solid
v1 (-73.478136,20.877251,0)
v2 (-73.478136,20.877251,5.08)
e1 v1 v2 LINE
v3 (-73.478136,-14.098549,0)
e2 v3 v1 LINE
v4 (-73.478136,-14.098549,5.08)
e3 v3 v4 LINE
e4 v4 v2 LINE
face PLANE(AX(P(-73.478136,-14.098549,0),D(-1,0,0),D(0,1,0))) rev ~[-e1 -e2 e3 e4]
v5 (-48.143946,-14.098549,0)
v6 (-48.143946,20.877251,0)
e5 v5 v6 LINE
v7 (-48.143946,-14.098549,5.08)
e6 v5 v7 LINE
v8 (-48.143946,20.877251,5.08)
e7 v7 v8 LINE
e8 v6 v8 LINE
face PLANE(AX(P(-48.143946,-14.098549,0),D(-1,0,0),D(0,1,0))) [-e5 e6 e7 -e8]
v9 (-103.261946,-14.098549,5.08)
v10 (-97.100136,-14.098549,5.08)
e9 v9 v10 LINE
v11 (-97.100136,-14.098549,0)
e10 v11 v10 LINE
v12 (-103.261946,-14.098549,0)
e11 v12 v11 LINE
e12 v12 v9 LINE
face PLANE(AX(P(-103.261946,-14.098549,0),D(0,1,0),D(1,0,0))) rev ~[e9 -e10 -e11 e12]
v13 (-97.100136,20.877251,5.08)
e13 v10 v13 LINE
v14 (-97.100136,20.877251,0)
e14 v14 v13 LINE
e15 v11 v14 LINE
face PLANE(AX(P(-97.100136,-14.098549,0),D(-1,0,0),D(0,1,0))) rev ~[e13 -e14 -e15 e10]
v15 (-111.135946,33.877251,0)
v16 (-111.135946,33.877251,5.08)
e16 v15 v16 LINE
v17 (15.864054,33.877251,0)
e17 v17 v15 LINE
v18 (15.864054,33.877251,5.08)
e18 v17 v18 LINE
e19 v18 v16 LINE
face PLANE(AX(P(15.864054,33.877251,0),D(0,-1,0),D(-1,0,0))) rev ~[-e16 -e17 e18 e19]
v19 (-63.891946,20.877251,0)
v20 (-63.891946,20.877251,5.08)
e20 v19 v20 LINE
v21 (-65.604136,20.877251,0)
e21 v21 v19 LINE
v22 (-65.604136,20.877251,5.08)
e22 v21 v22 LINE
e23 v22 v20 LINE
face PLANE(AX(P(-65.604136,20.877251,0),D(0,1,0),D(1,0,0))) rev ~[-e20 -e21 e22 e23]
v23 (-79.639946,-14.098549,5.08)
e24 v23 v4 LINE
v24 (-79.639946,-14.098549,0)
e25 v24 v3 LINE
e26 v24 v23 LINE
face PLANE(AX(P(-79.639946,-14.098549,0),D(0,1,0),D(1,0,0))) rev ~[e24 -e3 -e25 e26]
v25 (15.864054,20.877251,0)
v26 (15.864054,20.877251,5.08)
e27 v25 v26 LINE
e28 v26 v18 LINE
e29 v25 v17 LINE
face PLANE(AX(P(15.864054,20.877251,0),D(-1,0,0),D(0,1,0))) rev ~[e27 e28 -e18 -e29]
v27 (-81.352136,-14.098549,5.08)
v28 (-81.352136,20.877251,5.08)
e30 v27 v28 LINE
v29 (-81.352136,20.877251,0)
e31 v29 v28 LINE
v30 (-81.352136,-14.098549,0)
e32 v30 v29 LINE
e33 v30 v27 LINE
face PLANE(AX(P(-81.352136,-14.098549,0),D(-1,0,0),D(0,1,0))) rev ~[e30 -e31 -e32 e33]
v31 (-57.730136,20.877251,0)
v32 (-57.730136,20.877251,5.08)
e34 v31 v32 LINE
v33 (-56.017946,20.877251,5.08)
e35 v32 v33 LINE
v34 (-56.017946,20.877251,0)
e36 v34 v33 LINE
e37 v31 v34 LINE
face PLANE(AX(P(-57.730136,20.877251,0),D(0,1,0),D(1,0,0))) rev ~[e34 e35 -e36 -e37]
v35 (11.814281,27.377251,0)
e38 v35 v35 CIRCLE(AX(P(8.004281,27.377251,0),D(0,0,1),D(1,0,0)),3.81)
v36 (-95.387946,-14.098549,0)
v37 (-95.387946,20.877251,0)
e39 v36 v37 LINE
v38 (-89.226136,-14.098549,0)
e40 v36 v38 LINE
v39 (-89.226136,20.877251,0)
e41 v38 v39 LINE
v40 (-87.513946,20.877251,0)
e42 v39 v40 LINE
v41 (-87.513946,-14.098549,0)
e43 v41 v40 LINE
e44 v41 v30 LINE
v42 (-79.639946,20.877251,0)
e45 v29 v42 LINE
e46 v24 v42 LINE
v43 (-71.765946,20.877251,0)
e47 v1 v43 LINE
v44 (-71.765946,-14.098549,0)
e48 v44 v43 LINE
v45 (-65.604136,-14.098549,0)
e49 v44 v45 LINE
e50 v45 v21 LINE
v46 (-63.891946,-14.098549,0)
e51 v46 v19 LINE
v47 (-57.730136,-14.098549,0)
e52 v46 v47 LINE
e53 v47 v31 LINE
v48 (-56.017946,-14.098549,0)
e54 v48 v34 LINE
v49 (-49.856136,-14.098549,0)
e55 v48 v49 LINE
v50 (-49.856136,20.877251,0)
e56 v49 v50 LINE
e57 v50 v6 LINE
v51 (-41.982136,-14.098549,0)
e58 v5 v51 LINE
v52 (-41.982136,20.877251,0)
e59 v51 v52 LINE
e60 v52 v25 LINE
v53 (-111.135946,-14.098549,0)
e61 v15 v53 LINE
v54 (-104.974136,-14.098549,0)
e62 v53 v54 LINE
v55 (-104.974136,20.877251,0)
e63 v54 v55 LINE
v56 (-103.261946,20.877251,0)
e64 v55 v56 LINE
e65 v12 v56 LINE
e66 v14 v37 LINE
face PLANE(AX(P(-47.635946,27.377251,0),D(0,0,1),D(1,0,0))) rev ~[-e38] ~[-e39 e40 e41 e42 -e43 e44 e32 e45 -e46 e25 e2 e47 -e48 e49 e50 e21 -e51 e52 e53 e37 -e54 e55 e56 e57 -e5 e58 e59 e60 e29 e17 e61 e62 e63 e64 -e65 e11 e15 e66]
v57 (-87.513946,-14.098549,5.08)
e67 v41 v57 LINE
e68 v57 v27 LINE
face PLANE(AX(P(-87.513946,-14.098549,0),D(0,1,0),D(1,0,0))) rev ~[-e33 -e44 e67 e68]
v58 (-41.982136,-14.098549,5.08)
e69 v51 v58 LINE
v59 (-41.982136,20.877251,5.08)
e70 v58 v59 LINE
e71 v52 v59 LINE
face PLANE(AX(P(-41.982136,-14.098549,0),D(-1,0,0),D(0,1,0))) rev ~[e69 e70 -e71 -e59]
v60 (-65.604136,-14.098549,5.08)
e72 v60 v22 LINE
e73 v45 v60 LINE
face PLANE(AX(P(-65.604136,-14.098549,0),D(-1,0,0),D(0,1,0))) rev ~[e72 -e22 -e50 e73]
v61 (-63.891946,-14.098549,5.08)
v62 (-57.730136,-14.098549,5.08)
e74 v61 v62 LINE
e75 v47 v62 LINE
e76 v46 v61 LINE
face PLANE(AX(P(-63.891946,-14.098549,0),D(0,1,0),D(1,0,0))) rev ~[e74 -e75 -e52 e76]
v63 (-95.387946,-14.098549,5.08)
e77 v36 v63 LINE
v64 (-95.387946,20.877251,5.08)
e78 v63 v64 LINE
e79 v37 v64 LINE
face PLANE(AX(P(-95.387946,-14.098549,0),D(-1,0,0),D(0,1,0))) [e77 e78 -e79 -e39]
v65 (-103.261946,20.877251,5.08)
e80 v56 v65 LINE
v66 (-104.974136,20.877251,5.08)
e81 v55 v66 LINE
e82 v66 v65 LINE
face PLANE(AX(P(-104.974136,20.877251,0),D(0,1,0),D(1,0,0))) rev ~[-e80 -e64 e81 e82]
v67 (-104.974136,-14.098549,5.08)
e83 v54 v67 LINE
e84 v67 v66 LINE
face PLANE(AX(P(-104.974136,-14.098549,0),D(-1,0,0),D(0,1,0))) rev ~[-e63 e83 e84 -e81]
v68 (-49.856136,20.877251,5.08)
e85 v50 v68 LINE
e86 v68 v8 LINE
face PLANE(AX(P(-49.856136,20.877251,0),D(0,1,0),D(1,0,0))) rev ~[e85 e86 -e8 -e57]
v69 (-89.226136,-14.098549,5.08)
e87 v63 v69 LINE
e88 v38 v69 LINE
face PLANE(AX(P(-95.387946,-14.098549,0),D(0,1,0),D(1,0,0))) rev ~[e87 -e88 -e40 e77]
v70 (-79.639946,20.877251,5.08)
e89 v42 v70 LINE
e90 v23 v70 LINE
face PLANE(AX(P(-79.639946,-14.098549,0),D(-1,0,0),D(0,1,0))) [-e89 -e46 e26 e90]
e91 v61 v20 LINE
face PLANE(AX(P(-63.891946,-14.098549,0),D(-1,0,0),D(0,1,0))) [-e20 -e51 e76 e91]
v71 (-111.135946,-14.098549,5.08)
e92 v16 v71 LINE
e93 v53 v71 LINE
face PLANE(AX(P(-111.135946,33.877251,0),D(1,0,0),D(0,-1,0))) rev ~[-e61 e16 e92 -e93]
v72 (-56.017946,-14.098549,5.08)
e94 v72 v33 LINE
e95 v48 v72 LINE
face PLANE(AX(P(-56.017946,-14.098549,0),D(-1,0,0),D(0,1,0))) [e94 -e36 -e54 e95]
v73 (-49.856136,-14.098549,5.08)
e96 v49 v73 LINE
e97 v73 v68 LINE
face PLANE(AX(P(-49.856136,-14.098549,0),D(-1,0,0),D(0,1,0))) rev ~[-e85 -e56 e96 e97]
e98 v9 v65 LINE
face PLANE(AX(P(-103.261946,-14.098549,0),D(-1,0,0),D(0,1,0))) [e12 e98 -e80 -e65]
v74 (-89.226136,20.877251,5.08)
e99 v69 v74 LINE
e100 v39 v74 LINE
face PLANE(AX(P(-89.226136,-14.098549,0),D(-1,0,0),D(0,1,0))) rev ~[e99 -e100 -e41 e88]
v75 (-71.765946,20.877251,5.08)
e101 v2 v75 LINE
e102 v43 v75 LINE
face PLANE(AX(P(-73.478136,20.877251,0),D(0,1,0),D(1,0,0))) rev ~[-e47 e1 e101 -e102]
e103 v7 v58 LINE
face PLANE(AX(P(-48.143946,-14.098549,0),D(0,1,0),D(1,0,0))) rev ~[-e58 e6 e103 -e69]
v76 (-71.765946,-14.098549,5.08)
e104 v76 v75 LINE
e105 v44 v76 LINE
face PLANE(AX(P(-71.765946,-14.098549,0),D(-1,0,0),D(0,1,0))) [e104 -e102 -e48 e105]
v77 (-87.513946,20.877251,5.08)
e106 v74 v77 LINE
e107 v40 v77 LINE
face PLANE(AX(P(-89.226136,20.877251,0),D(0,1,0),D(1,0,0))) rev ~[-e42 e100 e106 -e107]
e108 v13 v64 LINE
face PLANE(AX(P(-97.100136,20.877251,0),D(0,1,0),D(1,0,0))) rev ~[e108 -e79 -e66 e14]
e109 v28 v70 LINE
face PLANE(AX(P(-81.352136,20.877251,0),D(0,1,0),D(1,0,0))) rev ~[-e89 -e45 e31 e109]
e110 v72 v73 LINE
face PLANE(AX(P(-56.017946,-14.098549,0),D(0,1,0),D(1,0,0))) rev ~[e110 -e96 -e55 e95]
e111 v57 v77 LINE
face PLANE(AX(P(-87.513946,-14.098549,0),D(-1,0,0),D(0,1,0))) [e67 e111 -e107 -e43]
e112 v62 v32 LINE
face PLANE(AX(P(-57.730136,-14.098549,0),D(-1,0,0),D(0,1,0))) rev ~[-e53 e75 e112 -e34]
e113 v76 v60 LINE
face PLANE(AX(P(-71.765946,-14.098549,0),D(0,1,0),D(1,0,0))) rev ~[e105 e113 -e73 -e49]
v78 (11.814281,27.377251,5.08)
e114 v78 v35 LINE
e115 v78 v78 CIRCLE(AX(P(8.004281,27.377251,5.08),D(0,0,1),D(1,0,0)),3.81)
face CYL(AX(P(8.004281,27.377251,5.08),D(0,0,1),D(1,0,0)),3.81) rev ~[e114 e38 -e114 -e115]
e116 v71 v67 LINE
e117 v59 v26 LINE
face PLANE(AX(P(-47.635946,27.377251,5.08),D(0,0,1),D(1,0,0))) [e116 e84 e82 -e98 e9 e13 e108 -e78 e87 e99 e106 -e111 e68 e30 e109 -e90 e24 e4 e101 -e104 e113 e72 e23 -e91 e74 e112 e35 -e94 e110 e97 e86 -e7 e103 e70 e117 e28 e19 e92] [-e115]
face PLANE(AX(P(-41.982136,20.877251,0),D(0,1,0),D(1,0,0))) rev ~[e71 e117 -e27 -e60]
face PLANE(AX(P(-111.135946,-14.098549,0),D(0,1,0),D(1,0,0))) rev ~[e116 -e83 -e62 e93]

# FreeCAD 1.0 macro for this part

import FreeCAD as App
import Part
import Sketcher

V = App.Vector
Q = App.Units.Quantity

doc = App.newDocument("Part")
body = doc.addObject("PartDesign::Body", "Body")

# Sketch on XY plane
sketch1 = doc.addObject("Sketcher::SketchObject", "Sketch")
body.addObject(sketch1)
sketch1.AttachmentSupport = (doc.XY_Plane, [""])
sketch1.MapMode = "FlatFace"
sketch1.addGeometry([
    Part.LineSegment(V(-111.135946, 33.877251, 0), V(-111.135946, -14.098549, 0)),  # 0
    Part.LineSegment(V(-111.135946, -14.098549, 0), V(-104.974136, -14.098549, 0)),  # 1
    Part.LineSegment(V(-104.974136, -14.098549, 0), V(-104.974136, 20.877251, 0)),  # 2
    Part.LineSegment(V(-104.974136, 20.877251, 0), V(-103.261946, 20.877251, 0)),  # 3
    Part.LineSegment(V(-103.261946, 20.877251, 0), V(-103.261946, -14.098549, 0)),  # 4
    Part.LineSegment(V(-103.261946, -14.098549, 0), V(-97.100136, -14.098549, 0)),  # 5
    Part.LineSegment(V(-97.100136, -14.098549, 0), V(-97.100136, 20.877251, 0)),  # 6
    Part.LineSegment(V(-97.100136, 20.877251, 0), V(-95.387946, 20.877251, 0)),  # 7
    Part.LineSegment(V(-95.387946, 20.877251, 0), V(-95.387946, -14.098549, 0)),  # 8
    Part.LineSegment(V(-95.387946, -14.098549, 0), V(-89.226136, -14.098549, 0)),  # 9
    Part.LineSegment(V(-89.226136, -14.098549, 0), V(-89.226136, 20.877251, 0)),  # 10
    Part.LineSegment(V(-89.226136, 20.877251, 0), V(-87.513946, 20.877251, 0)),  # 11
    Part.LineSegment(V(-87.513946, 20.877251, 0), V(-87.513946, -14.098549, 0)),  # 12
    Part.LineSegment(V(-87.513946, -14.098549, 0), V(-81.352136, -14.098549, 0)),  # 13
    Part.LineSegment(V(-81.352136, -14.098549, 0), V(-81.352136, 20.877251, 0)),  # 14
    Part.LineSegment(V(-81.352136, 20.877251, 0), V(-79.639946, 20.877251, 0)),  # 15
    Part.LineSegment(V(-79.639946, 20.877251, 0), V(-79.639946, -14.098549, 0)),  # 16
    Part.LineSegment(V(-79.639946, -14.098549, 0), V(-73.478136, -14.098549, 0)),  # 17
    Part.LineSegment(V(-73.478136, -14.098549, 0), V(-73.478136, 20.877251, 0)),  # 18
    Part.LineSegment(V(-73.478136, 20.877251, 0), V(-71.765946, 20.877251, 0)),  # 19
    Part.LineSegment(V(-71.765946, 20.877251, 0), V(-71.765946, -14.098549, 0)),  # 20
    Part.LineSegment(V(-71.765946, -14.098549, 0), V(-65.604136, -14.098549, 0)),  # 21
    Part.LineSegment(V(-65.604136, -14.098549, 0), V(-65.604136, 20.877251, 0)),  # 22
    Part.LineSegment(V(-65.604136, 20.877251, 0), V(-63.891946, 20.877251, 0)),  # 23
    Part.LineSegment(V(-63.891946, 20.877251, 0), V(-63.891946, -14.098549, 0)),  # 24
    Part.LineSegment(V(-63.891946, -14.098549, 0), V(-57.730136, -14.098549, 0)),  # 25
    Part.LineSegment(V(-57.730136, -14.098549, 0), V(-57.730136, 20.877251, 0)),  # 26
    Part.LineSegment(V(-57.730136, 20.877251, 0), V(-56.017946, 20.877251, 0)),  # 27
    Part.LineSegment(V(-56.017946, 20.877251, 0), V(-56.017946, -14.098549, 0)),  # 28
    Part.LineSegment(V(-56.017946, -14.098549, 0), V(-49.856136, -14.098549, 0)),  # 29
    Part.LineSegment(V(-49.856136, -14.098549, 0), V(-49.856136, 20.877251, 0)),  # 30
    Part.LineSegment(V(-49.856136, 20.877251, 0), V(-48.143946, 20.877251, 0)),  # 31
    Part.LineSegment(V(-48.143946, 20.877251, 0), V(-48.143946, -14.098549, 0)),  # 32
    Part.LineSegment(V(-48.143946, -14.098549, 0), V(-41.982136, -14.098549, 0)),  # 33
    Part.LineSegment(V(-41.982136, -14.098549, 0), V(-41.982136, 20.877251, 0)),  # 34
    Part.LineSegment(V(-41.982136, 20.877251, 0), V(15.864054, 20.877251, 0)),  # 35
    Part.LineSegment(V(15.864054, 20.877251, 0), V(15.864054, 33.877251, 0)),  # 36
    Part.LineSegment(V(15.864054, 33.877251, 0), V(-111.135946, 33.877251, 0)),  # 37
], False)
sketch1.addConstraint([
    Sketcher.Constraint("Coincident", 0, 2, 1, 1),
    Sketcher.Constraint("Coincident", 1, 2, 2, 1),
    Sketcher.Constraint("Coincident", 2, 2, 3, 1),
    Sketcher.Constraint("Coincident", 3, 2, 4, 1),
    Sketcher.Constraint("Coincident", 4, 2, 5, 1),
    Sketcher.Constraint("Coincident", 5, 2, 6, 1),
    Sketcher.Constraint("Coincident", 6, 2, 7, 1),
    Sketcher.Constraint("Coincident", 7, 2, 8, 1),
    Sketcher.Constraint("Coincident", 8, 2, 9, 1),
    Sketcher.Constraint("Coincident", 9, 2, 10, 1),
    Sketcher.Constraint("Coincident", 10, 2, 11, 1),
    Sketcher.Constraint("Coincident", 11, 2, 12, 1),
    Sketcher.Constraint("Coincident", 12, 2, 13, 1),
    Sketcher.Constraint("Coincident", 13, 2, 14, 1),
    Sketcher.Constraint("Coincident", 14, 2, 15, 1),
    Sketcher.Constraint("Coincident", 15, 2, 16, 1),
    Sketcher.Constraint("Coincident", 16, 2, 17, 1),
    Sketcher.Constraint("Coincident", 17, 2, 18, 1),
    Sketcher.Constraint("Coincident", 18, 2, 19, 1),
    Sketcher.Constraint("Coincident", 19, 2, 20, 1),
    Sketcher.Constraint("Coincident", 20, 2, 21, 1),
    Sketcher.Constraint("Coincident", 21, 2, 22, 1),
    Sketcher.Constraint("Coincident", 22, 2, 23, 1),
    Sketcher.Constraint("Coincident", 23, 2, 24, 1),
    Sketcher.Constraint("Coincident", 24, 2, 25, 1),
    Sketcher.Constraint("Coincident", 25, 2, 26, 1),
    Sketcher.Constraint("Coincident", 26, 2, 27, 1),
    Sketcher.Constraint("Coincident", 27, 2, 28, 1),
    Sketcher.Constraint("Coincident", 28, 2, 29, 1),
    Sketcher.Constraint("Coincident", 29, 2, 30, 1),
    Sketcher.Constraint("Coincident", 30, 2, 31, 1),
    Sketcher.Constraint("Coincident", 31, 2, 32, 1),
    Sketcher.Constraint("Coincident", 32, 2, 33, 1),
    Sketcher.Constraint("Coincident", 33, 2, 34, 1),
    Sketcher.Constraint("Coincident", 34, 2, 35, 1),
    Sketcher.Constraint("Coincident", 35, 2, 36, 1),
    Sketcher.Constraint("Coincident", 36, 2, 37, 1),
    Sketcher.Constraint("Coincident", 37, 2, 0, 1),
    Sketcher.Constraint("Vertical", 0),
    Sketcher.Constraint("Horizontal", 1),
    Sketcher.Constraint("Vertical", 2),
    Sketcher.Constraint("Horizontal", 3),
    Sketcher.Constraint("Vertical", 4),
    Sketcher.Constraint("Horizontal", 5),
    Sketcher.Constraint("Vertical", 6),
    Sketcher.Constraint("Horizontal", 7),
    Sketcher.Constraint("Vertical", 8),
    Sketcher.Constraint("Horizontal", 9),
    Sketcher.Constraint("Vertical", 10),
    Sketcher.Constraint("Horizontal", 11),
    Sketcher.Constraint("Vertical", 12),
    Sketcher.Constraint("Horizontal", 13),
    Sketcher.Constraint("Vertical", 14),
    Sketcher.Constraint("Horizontal", 15),
    Sketcher.Constraint("Vertical", 16),
    Sketcher.Constraint("Horizontal", 17),
    Sketcher.Constraint("Vertical", 18),
    Sketcher.Constraint("Horizontal", 19),
    Sketcher.Constraint("Vertical", 20),
    Sketcher.Constraint("Horizontal", 21),
    Sketcher.Constraint("Vertical", 22),
    Sketcher.Constraint("Horizontal", 23),
    Sketcher.Constraint("Vertical", 24),
    Sketcher.Constraint("Horizontal", 25),
    Sketcher.Constraint("Vertical", 26),
    Sketcher.Constraint("Horizontal", 27),
    Sketcher.Constraint("Vertical", 28),
    Sketcher.Constraint("Horizontal", 29),
    Sketcher.Constraint("Vertical", 30),
    Sketcher.Constraint("Horizontal", 31),
    Sketcher.Constraint("Vertical", 32),
    Sketcher.Constraint("Horizontal", 33),
    Sketcher.Constraint("Vertical", 34),
    Sketcher.Constraint("Horizontal", 35),
    Sketcher.Constraint("Vertical", 36),
    Sketcher.Constraint("Horizontal", 37),
    Sketcher.Constraint("Horizontal", 1, 2, 4, 2),
    Sketcher.Constraint("Horizontal", 3, 2, 6, 2),
    Sketcher.Constraint("Horizontal", 5, 2, 8, 2),
    Sketcher.Constraint("Horizontal", 7, 2, 10, 2),
    Sketcher.Constraint("Horizontal", 9, 2, 12, 2),
    Sketcher.Constraint("Horizontal", 11, 2, 14, 2),
    Sketcher.Constraint("Horizontal", 13, 2, 16, 2),
    Sketcher.Constraint("Horizontal", 15, 2, 18, 2),
    Sketcher.Constraint("Horizontal", 17, 2, 20, 2),
    Sketcher.Constraint("Horizontal", 19, 2, 22, 2),
    Sketcher.Constraint("Horizontal", 21, 2, 24, 2),
    Sketcher.Constraint("Horizontal", 23, 2, 26, 2),
    Sketcher.Constraint("Horizontal", 25, 2, 28, 2),
    Sketcher.Constraint("Horizontal", 27, 2, 30, 2),
    Sketcher.Constraint("Horizontal", 29, 2, 32, 2),
    Sketcher.Constraint("Horizontal", 31, 2, 34, 2),
    Sketcher.Constraint("Equal", 1, 5),
    Sketcher.Constraint("Equal", 3, 7),
    Sketcher.Constraint("Equal", 5, 9),
    Sketcher.Constraint("Equal", 7, 11),
    Sketcher.Constraint("Equal", 9, 13),
    Sketcher.Constraint("Equal", 11, 15),
    Sketcher.Constraint("Equal", 13, 17),
    Sketcher.Constraint("Equal", 15, 19),
    Sketcher.Constraint("Equal", 17, 21),
    Sketcher.Constraint("Equal", 19, 23),
    Sketcher.Constraint("Equal", 21, 25),
    Sketcher.Constraint("Equal", 23, 27),
    Sketcher.Constraint("Equal", 25, 29),
    Sketcher.Constraint("Equal", 27, 31),
    Sketcher.Constraint("Equal", 29, 33),
    Sketcher.Constraint("DistanceX", 37, 2, 37, 1, Q("5 in")),
    Sketcher.Constraint("DistanceY", 2, 1, 2, 2, Q("1.377 in")),
    Sketcher.Constraint("DistanceX", 0, 2, 3, 2, Q("0.31 in")),
    Sketcher.Constraint("DistanceY", 0, 2, 0, 1, Q("47.9758 mm")),
    Sketcher.Constraint("DistanceX", 1, 1, 1, 2, Q("6.16181 mm")),
    Sketcher.Constraint("DistanceY", 0, 2, -1, 1, Q("14.098549 mm")),
    Sketcher.Constraint("DistanceX", 0, 2, -1, 1, Q("111.135946 mm")),
])
pad1 = doc.addObject("PartDesign::Pad", "Pad")
body.addObject(pad1)
pad1.Profile = sketch1
pad1.Length = Q("0.2 in")

# Sketch on XY plane
sketch2 = doc.addObject("Sketcher::SketchObject", "Sketch001")
body.addObject(sketch2)
sketch2.AttachmentSupport = (doc.XY_Plane, [""])
sketch2.MapMode = "FlatFace"
sketch2.AttachmentOffset = App.Placement(V(0, 0, 0.2 * 25.4), App.Rotation())
sketch2.addGeometry(Part.Circle(V(8.004281, 27.377251, 0), V(0, 0, 1), 3.81), False)
sketch2.addConstraint([
    Sketcher.Constraint("Diameter", 0, Q("0.3 in")),
    Sketcher.Constraint("DistanceX", -1, 1, 0, 3, Q("8.004281 mm")),
    Sketcher.Constraint("DistanceY", -1, 1, 0, 3, Q("27.377251 mm")),
])
pocket1 = doc.addObject("PartDesign::Pocket", "Pocket")
body.addObject(pocket1)
pocket1.Profile = sketch2
pocket1.Length = Q("1 in")

doc.recompute()
